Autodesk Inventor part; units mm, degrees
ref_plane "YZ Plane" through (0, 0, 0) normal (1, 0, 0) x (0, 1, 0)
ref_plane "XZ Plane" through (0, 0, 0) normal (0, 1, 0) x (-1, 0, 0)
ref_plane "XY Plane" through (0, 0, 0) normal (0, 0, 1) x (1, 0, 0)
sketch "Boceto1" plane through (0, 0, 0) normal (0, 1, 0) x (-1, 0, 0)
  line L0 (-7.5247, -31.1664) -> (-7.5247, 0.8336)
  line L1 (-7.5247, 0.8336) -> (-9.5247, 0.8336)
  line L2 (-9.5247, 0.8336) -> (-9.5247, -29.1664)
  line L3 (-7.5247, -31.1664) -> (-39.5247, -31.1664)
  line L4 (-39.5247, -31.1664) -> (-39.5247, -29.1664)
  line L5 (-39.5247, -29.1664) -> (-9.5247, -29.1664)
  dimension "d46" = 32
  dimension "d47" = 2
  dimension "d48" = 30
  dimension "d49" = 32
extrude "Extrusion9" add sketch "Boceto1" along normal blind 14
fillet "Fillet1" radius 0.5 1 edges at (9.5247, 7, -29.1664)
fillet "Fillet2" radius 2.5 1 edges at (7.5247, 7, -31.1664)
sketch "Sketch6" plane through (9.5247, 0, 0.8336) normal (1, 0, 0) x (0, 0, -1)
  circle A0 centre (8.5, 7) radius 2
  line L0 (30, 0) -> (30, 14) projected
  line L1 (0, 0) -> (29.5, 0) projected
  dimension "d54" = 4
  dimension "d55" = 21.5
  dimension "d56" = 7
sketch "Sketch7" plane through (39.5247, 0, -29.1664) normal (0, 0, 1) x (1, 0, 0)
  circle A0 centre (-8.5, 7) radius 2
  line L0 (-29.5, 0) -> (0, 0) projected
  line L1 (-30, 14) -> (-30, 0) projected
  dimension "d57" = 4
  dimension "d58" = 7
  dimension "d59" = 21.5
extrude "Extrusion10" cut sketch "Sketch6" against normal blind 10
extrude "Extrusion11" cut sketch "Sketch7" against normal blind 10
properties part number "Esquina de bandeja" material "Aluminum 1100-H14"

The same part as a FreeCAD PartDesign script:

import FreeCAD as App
import Part
import Sketcher


def edges_at(feature, points):
    """Names of the edges that pass closest to the given points."""
    edges = feature.Shape.Edges
    near = lambda p: min(range(len(edges)), key=lambda i: edges[i].distToShape(Part.Vertex(*p))[0])
    return sorted({f"Edge{near(p) + 1}" for p in points})

doc = App.newDocument("Part")
body = doc.addObject("PartDesign::Body", "Body")

# Sketch on XZ plane
sketch1 = doc.addObject("Sketcher::SketchObject", "Sketch")
body.addObject(sketch1)
sketch1.AttachmentSupport = (doc.XZ_Plane, [""])
sketch1.MapMode = "FlatFace"
sketch1.addGeometry(Part.LineSegment(App.Vector(39.5247, -31.1664, 0), App.Vector(7.5247, -31.1664, 0)), False)
sketch1.addGeometry(Part.LineSegment(App.Vector(7.5247, -31.1664, 0), App.Vector(7.5247, 0.8336, 0)), False)
sketch1.addGeometry(Part.LineSegment(App.Vector(7.5247, 0.8336, 0), App.Vector(9.5247, 0.8336, 0)), False)
sketch1.addGeometry(Part.LineSegment(App.Vector(9.5247, 0.8336, 0), App.Vector(9.5247, -29.1664, 0)), False)
sketch1.addGeometry(Part.LineSegment(App.Vector(9.5247, -29.1664, 0), App.Vector(39.5247, -29.1664, 0)), False)
sketch1.addGeometry(Part.LineSegment(App.Vector(39.5247, -29.1664, 0), App.Vector(39.5247, -31.1664, 0)), False)
sketch1.addConstraint(Sketcher.Constraint("Coincident", 0, 2, 1, 1))
sketch1.addConstraint(Sketcher.Constraint("Coincident", 1, 2, 2, 1))
sketch1.addConstraint(Sketcher.Constraint("Coincident", 2, 2, 3, 1))
sketch1.addConstraint(Sketcher.Constraint("Coincident", 3, 2, 4, 1))
sketch1.addConstraint(Sketcher.Constraint("Coincident", 4, 2, 5, 1))
sketch1.addConstraint(Sketcher.Constraint("Coincident", 5, 2, 0, 1))
sketch1.addConstraint(Sketcher.Constraint("Horizontal", 0))
sketch1.addConstraint(Sketcher.Constraint("Vertical", 1))
sketch1.addConstraint(Sketcher.Constraint("Horizontal", 2))
sketch1.addConstraint(Sketcher.Constraint("Vertical", 3))
sketch1.addConstraint(Sketcher.Constraint("Horizontal", 4))
sketch1.addConstraint(Sketcher.Constraint("Vertical", 5))
sketch1.addConstraint(Sketcher.Constraint("Equal", 0, 1))
sketch1.addConstraint(Sketcher.Constraint("Equal", 4, 3))
sketch1.addConstraint(Sketcher.Constraint("DistanceX", 0, 2, 0, 1, 32.0))
sketch1.addConstraint(Sketcher.Constraint("DistanceX", 2, 1, 2, 2, 2.0))
sketch1.addConstraint(Sketcher.Constraint("DistanceX", -1, 1, 0, 2, 7.5247))
sketch1.addConstraint(Sketcher.Constraint("DistanceY", 0, 2, -1, 1, 31.1664))
pad1 = doc.addObject("PartDesign::Pad", "Pad")
body.addObject(pad1)
pad1.Profile = sketch1
pad1.Length = 14
pad1.Reversed = True
doc.recompute()

fillet = doc.addObject("PartDesign::Fillet", "Fillet")
body.addObject(fillet)
fillet.Base = (pad1, edges_at(pad1, [(9.525, 7, -29.166)]))
fillet.Radius = 0.5
doc.recompute()

fillet2 = doc.addObject("PartDesign::Fillet", "Fillet001")
body.addObject(fillet2)
fillet2.Base = (fillet, edges_at(fillet, [(7.525, 7, -31.166)]))
fillet2.Radius = 2.5

# Sketch on YZ plane
sketch2 = doc.addObject("Sketcher::SketchObject", "Sketch001")
body.addObject(sketch2)
sketch2.AttachmentSupport = (doc.YZ_Plane, [""])
sketch2.MapMode = "FlatFace"
sketch2.AttachmentOffset = App.Placement(App.Vector(0, 0, 9.5247), App.Rotation())
sketch2.addGeometry(Part.Circle(App.Vector(7, -7.6664, 0), App.Vector(0, 0, 1), 2), False)
sketch2.addConstraint(Sketcher.Constraint("Diameter", 0, 4.0))
sketch2.addConstraint(Sketcher.Constraint("DistanceX", -1, 1, 0, 3, 7.0))
sketch2.addConstraint(Sketcher.Constraint("DistanceY", 0, 3, -1, 1, 7.6664))
pocket1 = doc.addObject("PartDesign::Pocket", "Pocket")
body.addObject(pocket1)
pocket1.Profile = sketch2
pocket1.Length = 10

# Sketch on XY plane
sketch3 = doc.addObject("Sketcher::SketchObject", "Sketch002")
body.addObject(sketch3)
sketch3.AttachmentSupport = (doc.XY_Plane, [""])
sketch3.MapMode = "FlatFace"
sketch3.AttachmentOffset = App.Placement(App.Vector(0, 0, -29.1664), App.Rotation())
sketch3.addGeometry(Part.Circle(App.Vector(31.0247, 7, 0), App.Vector(0, 0, 1), 2), False)
sketch3.addConstraint(Sketcher.Constraint("Diameter", 0, 4.0))
sketch3.addConstraint(Sketcher.Constraint("DistanceY", -1, 1, 0, 3, 7.0))
sketch3.addConstraint(Sketcher.Constraint("DistanceX", -1, 1, 0, 3, 31.0247))
pocket2 = doc.addObject("PartDesign::Pocket", "Pocket001")
body.addObject(pocket2)
pocket2.Profile = sketch3
pocket2.Length = 10

doc.recompute()
